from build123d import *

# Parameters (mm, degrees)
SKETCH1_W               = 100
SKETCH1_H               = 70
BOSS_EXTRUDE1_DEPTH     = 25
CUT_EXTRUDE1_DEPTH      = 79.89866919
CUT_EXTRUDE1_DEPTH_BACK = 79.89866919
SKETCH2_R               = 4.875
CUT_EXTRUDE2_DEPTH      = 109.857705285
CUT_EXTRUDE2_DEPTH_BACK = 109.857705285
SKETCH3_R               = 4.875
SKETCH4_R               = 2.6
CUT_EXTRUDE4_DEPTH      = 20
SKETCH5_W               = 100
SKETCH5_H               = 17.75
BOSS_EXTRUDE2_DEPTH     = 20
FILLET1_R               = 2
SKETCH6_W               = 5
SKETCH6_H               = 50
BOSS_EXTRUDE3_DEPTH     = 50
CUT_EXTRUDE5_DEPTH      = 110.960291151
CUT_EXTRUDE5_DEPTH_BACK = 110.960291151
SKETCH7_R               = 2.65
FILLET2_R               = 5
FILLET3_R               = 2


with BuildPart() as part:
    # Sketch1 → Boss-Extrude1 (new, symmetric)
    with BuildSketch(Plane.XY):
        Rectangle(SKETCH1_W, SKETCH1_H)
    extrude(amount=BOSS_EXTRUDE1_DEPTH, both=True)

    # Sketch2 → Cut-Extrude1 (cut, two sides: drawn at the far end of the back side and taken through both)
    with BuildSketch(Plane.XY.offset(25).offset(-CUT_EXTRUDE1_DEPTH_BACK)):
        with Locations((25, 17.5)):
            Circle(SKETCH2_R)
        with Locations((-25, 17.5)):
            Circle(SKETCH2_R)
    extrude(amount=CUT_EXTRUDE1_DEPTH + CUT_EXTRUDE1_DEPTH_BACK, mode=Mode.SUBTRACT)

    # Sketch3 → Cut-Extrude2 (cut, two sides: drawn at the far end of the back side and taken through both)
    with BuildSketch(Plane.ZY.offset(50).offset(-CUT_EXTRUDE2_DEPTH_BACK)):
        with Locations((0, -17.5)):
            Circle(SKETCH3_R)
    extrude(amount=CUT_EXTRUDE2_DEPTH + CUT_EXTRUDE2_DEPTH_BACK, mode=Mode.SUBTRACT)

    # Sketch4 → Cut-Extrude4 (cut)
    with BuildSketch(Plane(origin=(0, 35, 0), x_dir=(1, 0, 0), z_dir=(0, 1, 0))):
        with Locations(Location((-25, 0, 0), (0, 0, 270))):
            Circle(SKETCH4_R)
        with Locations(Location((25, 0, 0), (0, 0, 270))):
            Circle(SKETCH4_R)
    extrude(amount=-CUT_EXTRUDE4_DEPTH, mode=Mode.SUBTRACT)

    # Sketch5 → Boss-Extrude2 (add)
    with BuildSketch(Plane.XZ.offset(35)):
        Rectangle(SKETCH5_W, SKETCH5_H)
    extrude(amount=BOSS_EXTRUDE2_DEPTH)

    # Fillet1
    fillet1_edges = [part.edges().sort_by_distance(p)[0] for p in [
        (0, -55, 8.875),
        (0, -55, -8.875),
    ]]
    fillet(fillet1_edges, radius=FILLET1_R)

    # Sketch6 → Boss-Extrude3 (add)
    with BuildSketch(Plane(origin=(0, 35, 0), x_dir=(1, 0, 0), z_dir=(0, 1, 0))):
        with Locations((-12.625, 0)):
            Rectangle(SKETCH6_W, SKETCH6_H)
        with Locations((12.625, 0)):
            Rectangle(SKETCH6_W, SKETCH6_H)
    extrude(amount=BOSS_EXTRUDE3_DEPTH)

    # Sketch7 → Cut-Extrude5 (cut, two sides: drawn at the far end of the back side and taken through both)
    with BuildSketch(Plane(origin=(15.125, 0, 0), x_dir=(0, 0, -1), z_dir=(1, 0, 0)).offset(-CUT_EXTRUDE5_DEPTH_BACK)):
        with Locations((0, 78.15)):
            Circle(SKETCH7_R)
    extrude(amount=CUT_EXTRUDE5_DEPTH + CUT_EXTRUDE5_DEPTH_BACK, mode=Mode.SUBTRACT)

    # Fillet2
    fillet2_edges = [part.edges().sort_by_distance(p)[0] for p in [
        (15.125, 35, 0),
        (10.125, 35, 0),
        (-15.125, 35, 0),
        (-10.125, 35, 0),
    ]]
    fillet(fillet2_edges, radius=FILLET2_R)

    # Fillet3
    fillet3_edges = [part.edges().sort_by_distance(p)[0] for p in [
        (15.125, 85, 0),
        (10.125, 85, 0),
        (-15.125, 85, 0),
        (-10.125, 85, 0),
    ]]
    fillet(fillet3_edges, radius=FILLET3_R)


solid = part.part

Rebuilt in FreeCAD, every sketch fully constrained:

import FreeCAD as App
import Part
import Sketcher

V = App.Vector


def edges_at(feature, points):
    """Names of the edges that pass closest to the given points."""
    edges = feature.Shape.Edges
    near = lambda p: min(range(len(edges)), key=lambda i: edges[i].distToShape(Part.Vertex(*p))[0])
    return sorted({f"Edge{near(p) + 1}" for p in points})

doc = App.newDocument("Part")
body = doc.addObject("PartDesign::Body", "Body")

# Sketch on XY plane
sketch1 = doc.addObject("Sketcher::SketchObject", "Sketch")
body.addObject(sketch1)
sketch1.AttachmentSupport = (doc.XY_Plane, [""])
sketch1.MapMode = "FlatFace"
sketch1.addGeometry(Part.LineSegment(V(-50, 35, 0), V(-50, -35, 0)), False)
sketch1.addGeometry(Part.LineSegment(V(-50, -35, 0), V(50, -35, 0)), False)
sketch1.addGeometry(Part.LineSegment(V(50, -35, 0), V(50, 35, 0)), False)
sketch1.addGeometry(Part.LineSegment(V(50, 35, 0), V(-50, 35, 0)), False)
sketch1.addConstraint(Sketcher.Constraint("Coincident", 0, 2, 1, 1))
sketch1.addConstraint(Sketcher.Constraint("Coincident", 1, 2, 2, 1))
sketch1.addConstraint(Sketcher.Constraint("Coincident", 2, 2, 3, 1))
sketch1.addConstraint(Sketcher.Constraint("Coincident", 3, 2, 0, 1))
sketch1.addConstraint(Sketcher.Constraint("Vertical", 0))
sketch1.addConstraint(Sketcher.Constraint("Horizontal", 1))
sketch1.addConstraint(Sketcher.Constraint("Vertical", 2))
sketch1.addConstraint(Sketcher.Constraint("Horizontal", 3))
sketch1.addConstraint(Sketcher.Constraint("Symmetric", 0, 2, 2, 2, -1, 1))
sketch1.addConstraint(Sketcher.Constraint("DistanceX", 1, 1, 1, 2, 100.0))
sketch1.addConstraint(Sketcher.Constraint("DistanceY", 0, 2, 0, 1, 70.0))
pad1 = doc.addObject("PartDesign::Pad", "Pad")
body.addObject(pad1)
pad1.Profile = sketch1
pad1.Length = 50
pad1.Midplane = True

# Sketch on XY plane
sketch2 = doc.addObject("Sketcher::SketchObject", "Sketch001")
body.addObject(sketch2)
sketch2.AttachmentSupport = (doc.XY_Plane, [""])
sketch2.MapMode = "FlatFace"
sketch2.AttachmentOffset = App.Placement(V(0, 0, 25), App.Rotation())
sketch2.addGeometry(Part.Circle(V(25, 17.5, 0), V(0, 0, 1), 4.9), False)
sketch2.addGeometry(Part.Circle(V(-25, 17.5, 0), V(0, 0, 1), 4.9), False)
sketch2.addConstraint(Sketcher.Constraint("Equal", 0, 1))
sketch2.addConstraint(Sketcher.Constraint("Symmetric", 0, 3, 1, 3, -2))
sketch2.addConstraint(Sketcher.Constraint("Diameter", 0, 9.75))
sketch2.addConstraint(Sketcher.Constraint("DistanceX", -1, 1, 0, 3, 25.0))
sketch2.addConstraint(Sketcher.Constraint("DistanceY", -1, 1, 0, 3, 17.5))
pocket1 = doc.addObject("PartDesign::Pocket", "Pocket")
body.addObject(pocket1)
pocket1.Profile = sketch2
pocket1.Type = "ThroughAll"
pocket1.Midplane = True

# Sketch on YZ plane
sketch3 = doc.addObject("Sketcher::SketchObject", "Sketch002")
body.addObject(sketch3)
sketch3.AttachmentSupport = (doc.YZ_Plane, [""])
sketch3.MapMode = "FlatFace"
sketch3.AttachmentOffset = App.Placement(V(0, 0, -50), App.Rotation())
sketch3.addGeometry(Part.Circle(V(-17.5, 0, 0), V(0, 0, 1), 4.9), False)
sketch3.addConstraint(Sketcher.Constraint("PointOnObject", 0, 3, -1))
sketch3.addConstraint(Sketcher.Constraint("Diameter", 0, 9.75))
sketch3.addConstraint(Sketcher.Constraint("DistanceX", 0, 3, -1, 1, 17.5))
pocket2 = doc.addObject("PartDesign::Pocket", "Pocket001")
body.addObject(pocket2)
pocket2.Profile = sketch3
pocket2.Type = "ThroughAll"
pocket2.Midplane = True

# Sketch on XZ plane
sketch4 = doc.addObject("Sketcher::SketchObject", "Sketch003")
body.addObject(sketch4)
sketch4.AttachmentSupport = (doc.XZ_Plane, [""])
sketch4.MapMode = "FlatFace"
sketch4.AttachmentOffset = App.Placement(V(0, 0, -35), App.Rotation())
sketch4.addGeometry(Part.Circle(V(-25, 0, 0), V(0, 0, 1), 2.6), False)
sketch4.addGeometry(Part.Circle(V(25, 0, 0), V(0, 0, 1), 2.6), False)
sketch4.addConstraint(Sketcher.Constraint("Equal", 0, 1))
sketch4.addConstraint(Sketcher.Constraint("Symmetric", 0, 3, 1, 3, -1, 1))
sketch4.addConstraint(Sketcher.Constraint("PointOnObject", 0, 3, -1))
sketch4.addConstraint(Sketcher.Constraint("Diameter", 0, 5.2))
sketch4.addConstraint(Sketcher.Constraint("DistanceX", 0, 3, -1, 1, 25.0))
pocket3 = doc.addObject("PartDesign::Pocket", "Pocket002")
body.addObject(pocket3)
pocket3.Profile = sketch4
pocket3.Length = 20
pocket3.Reversed = True

# Sketch on XZ plane
sketch5 = doc.addObject("Sketcher::SketchObject", "Sketch004")
body.addObject(sketch5)
sketch5.AttachmentSupport = (doc.XZ_Plane, [""])
sketch5.MapMode = "FlatFace"
sketch5.AttachmentOffset = App.Placement(V(0, 0, 35), App.Rotation())
sketch5.addGeometry(Part.LineSegment(V(-50, 9, 0), V(-50, -9, 0)), False)
sketch5.addGeometry(Part.LineSegment(V(-50, -9, 0), V(50, -9, 0)), False)
sketch5.addGeometry(Part.LineSegment(V(50, -9, 0), V(50, 9, 0)), False)
sketch5.addGeometry(Part.LineSegment(V(50, 9, 0), V(-50, 9, 0)), False)
sketch5.addConstraint(Sketcher.Constraint("Coincident", 0, 2, 1, 1))
sketch5.addConstraint(Sketcher.Constraint("Coincident", 1, 2, 2, 1))
sketch5.addConstraint(Sketcher.Constraint("Coincident", 2, 2, 3, 1))
sketch5.addConstraint(Sketcher.Constraint("Coincident", 3, 2, 0, 1))
sketch5.addConstraint(Sketcher.Constraint("Vertical", 0))
sketch5.addConstraint(Sketcher.Constraint("Horizontal", 1))
sketch5.addConstraint(Sketcher.Constraint("Vertical", 2))
sketch5.addConstraint(Sketcher.Constraint("Horizontal", 3))
sketch5.addConstraint(Sketcher.Constraint("Symmetric", 0, 2, 2, 2, -1, 1))
sketch5.addConstraint(Sketcher.Constraint("DistanceX", 1, 1, 1, 2, 100.0))
sketch5.addConstraint(Sketcher.Constraint("DistanceY", 0, 2, 0, 1, 17.75))
pad2 = doc.addObject("PartDesign::Pad", "Pad001")
body.addObject(pad2)
pad2.Profile = sketch5
pad2.Length = 20
doc.recompute()

fillet = doc.addObject("PartDesign::Fillet", "Fillet")
body.addObject(fillet)
fillet.Base = (pad2, edges_at(pad2, [(0, -55, 8.875), (0, -55, -8.875)]))
fillet.Radius = 2

# Sketch on XZ plane
sketch6 = doc.addObject("Sketcher::SketchObject", "Sketch005")
body.addObject(sketch6)
sketch6.AttachmentSupport = (doc.XZ_Plane, [""])
sketch6.MapMode = "FlatFace"
sketch6.AttachmentOffset = App.Placement(V(0, 0, -35), App.Rotation())
sketch6.addGeometry(Part.LineSegment(V(-15, -25, 0), V(-15, 25, 0)), False)
sketch6.addGeometry(Part.LineSegment(V(-15, 25, 0), V(-10, 25, 0)), False)
sketch6.addGeometry(Part.LineSegment(V(-10, 25, 0), V(-10, -25, 0)), False)
sketch6.addGeometry(Part.LineSegment(V(-10, -25, 0), V(-15, -25, 0)), False)
sketch6.addGeometry(Part.LineSegment(V(10, -25, 0), V(10, 25, 0)), False)
sketch6.addGeometry(Part.LineSegment(V(10, 25, 0), V(15, 25, 0)), False)
sketch6.addGeometry(Part.LineSegment(V(15, 25, 0), V(15, -25, 0)), False)
sketch6.addGeometry(Part.LineSegment(V(15, -25, 0), V(10, -25, 0)), False)
sketch6.addConstraint(Sketcher.Constraint("Coincident", 0, 2, 1, 1))
sketch6.addConstraint(Sketcher.Constraint("Coincident", 1, 2, 2, 1))
sketch6.addConstraint(Sketcher.Constraint("Coincident", 2, 2, 3, 1))
sketch6.addConstraint(Sketcher.Constraint("Coincident", 3, 2, 0, 1))
sketch6.addConstraint(Sketcher.Constraint("Coincident", 4, 2, 5, 1))
sketch6.addConstraint(Sketcher.Constraint("Coincident", 5, 2, 6, 1))
sketch6.addConstraint(Sketcher.Constraint("Coincident", 6, 2, 7, 1))
sketch6.addConstraint(Sketcher.Constraint("Coincident", 7, 2, 4, 1))
sketch6.addConstraint(Sketcher.Constraint("Vertical", 0))
sketch6.addConstraint(Sketcher.Constraint("Horizontal", 1))
sketch6.addConstraint(Sketcher.Constraint("Vertical", 2))
sketch6.addConstraint(Sketcher.Constraint("Horizontal", 3))
sketch6.addConstraint(Sketcher.Constraint("Vertical", 4))
sketch6.addConstraint(Sketcher.Constraint("Horizontal", 5))
sketch6.addConstraint(Sketcher.Constraint("Vertical", 6))
sketch6.addConstraint(Sketcher.Constraint("Horizontal", 7))
sketch6.addConstraint(Sketcher.Constraint("Symmetric", 2, 2, 4, 2, -1, 1))
sketch6.addConstraint(Sketcher.Constraint("Symmetric", 0, 2, 6, 2, -1, 1))
sketch6.addConstraint(Sketcher.Constraint("Horizontal", 1, 2, 4, 2))
sketch6.addConstraint(Sketcher.Constraint("DistanceX", 1, 1, 1, 2, 5.0))
sketch6.addConstraint(Sketcher.Constraint("DistanceY", 0, 1, 0, 2, 50.0))
sketch6.addConstraint(Sketcher.Constraint("DistanceX", 1, 2, 4, 2, 20.25))
pad3 = doc.addObject("PartDesign::Pad", "Pad002")
body.addObject(pad3)
pad3.Profile = sketch6
pad3.Length = 50
pad3.Reversed = True

# Sketch on YZ plane
sketch7 = doc.addObject("Sketcher::SketchObject", "Sketch006")
body.addObject(sketch7)
sketch7.AttachmentSupport = (doc.YZ_Plane, [""])
sketch7.MapMode = "FlatFace"
sketch7.AttachmentOffset = App.Placement(V(0, 0, 15.125), App.Rotation())
sketch7.addGeometry(Part.Circle(V(78.2, 0, 0), V(0, 0, 1), 2.6), False)
sketch7.addConstraint(Sketcher.Constraint("PointOnObject", 0, 3, -1))
sketch7.addConstraint(Sketcher.Constraint("Diameter", 0, 5.3))
sketch7.addConstraint(Sketcher.Constraint("DistanceX", -1, 1, 0, 3, 78.15))
pocket4 = doc.addObject("PartDesign::Pocket", "Pocket003")
body.addObject(pocket4)
pocket4.Profile = sketch7
pocket4.Type = "ThroughAll"
pocket4.Midplane = True
doc.recompute()

fillet2 = doc.addObject("PartDesign::Fillet", "Fillet001")
body.addObject(fillet2)
fillet2.Base = (pocket4, edges_at(pocket4, [
    (15.125, 35, 0),
    (10.125, 35, 0),
    (-15.125, 35, 0),
    (-10.125, 35, 0),
]))
fillet2.Radius = 5
doc.recompute()

fillet3 = doc.addObject("PartDesign::Fillet", "Fillet002")
body.addObject(fillet3)
fillet3.Base = (fillet2, edges_at(fillet2, [
    (15.125, 85, 0),
    (10.125, 85, 0),
    (-15.125, 85, 0),
    (-10.125, 85, 0),
]))
fillet3.Radius = 2

doc.recompute()
